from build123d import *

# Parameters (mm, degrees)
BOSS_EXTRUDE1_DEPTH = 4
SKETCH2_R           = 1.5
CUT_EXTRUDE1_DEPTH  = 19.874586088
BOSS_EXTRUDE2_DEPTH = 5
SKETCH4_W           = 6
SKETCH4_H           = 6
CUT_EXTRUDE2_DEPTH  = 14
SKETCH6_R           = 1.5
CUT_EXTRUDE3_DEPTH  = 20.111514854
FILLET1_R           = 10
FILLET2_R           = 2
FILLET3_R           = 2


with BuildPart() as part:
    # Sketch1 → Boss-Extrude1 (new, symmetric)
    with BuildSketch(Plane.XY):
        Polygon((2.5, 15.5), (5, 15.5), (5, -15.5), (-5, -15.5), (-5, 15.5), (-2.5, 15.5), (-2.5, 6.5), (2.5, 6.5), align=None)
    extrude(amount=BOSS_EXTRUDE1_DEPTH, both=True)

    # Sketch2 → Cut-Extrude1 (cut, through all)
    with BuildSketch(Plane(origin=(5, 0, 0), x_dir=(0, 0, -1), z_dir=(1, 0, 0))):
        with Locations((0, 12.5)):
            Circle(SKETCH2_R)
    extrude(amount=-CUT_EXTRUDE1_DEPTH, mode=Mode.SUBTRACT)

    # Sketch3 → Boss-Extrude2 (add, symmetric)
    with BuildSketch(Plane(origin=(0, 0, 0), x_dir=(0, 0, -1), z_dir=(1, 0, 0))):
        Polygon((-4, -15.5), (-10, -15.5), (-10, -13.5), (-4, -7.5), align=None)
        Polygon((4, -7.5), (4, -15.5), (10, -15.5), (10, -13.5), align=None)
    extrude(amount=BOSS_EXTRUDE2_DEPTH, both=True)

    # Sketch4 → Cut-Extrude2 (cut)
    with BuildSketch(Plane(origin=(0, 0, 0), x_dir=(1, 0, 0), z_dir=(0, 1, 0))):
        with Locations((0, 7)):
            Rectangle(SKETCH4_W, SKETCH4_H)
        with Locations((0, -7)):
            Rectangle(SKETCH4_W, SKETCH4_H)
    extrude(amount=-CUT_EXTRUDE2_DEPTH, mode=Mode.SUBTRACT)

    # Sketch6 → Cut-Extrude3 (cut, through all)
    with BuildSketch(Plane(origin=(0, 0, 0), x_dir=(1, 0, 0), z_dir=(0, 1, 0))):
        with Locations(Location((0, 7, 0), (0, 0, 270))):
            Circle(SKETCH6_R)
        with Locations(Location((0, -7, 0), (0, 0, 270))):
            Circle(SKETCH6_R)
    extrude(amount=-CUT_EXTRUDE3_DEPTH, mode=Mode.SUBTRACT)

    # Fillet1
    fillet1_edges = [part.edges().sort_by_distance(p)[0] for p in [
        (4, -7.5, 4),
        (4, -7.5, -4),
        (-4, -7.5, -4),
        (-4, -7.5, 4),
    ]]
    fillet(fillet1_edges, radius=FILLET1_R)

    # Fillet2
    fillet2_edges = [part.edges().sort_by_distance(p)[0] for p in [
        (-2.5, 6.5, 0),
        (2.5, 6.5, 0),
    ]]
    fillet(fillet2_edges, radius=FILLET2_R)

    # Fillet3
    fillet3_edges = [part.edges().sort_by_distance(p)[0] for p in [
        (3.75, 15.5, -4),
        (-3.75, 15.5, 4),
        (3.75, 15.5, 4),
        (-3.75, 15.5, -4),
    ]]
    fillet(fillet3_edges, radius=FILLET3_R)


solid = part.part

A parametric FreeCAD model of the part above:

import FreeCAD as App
import Part
import Sketcher
Q = App.Units.Quantity


def edges_at(feature, points):
    """Names of the edges that pass closest to the given points."""
    edges = feature.Shape.Edges
    near = lambda p: min(range(len(edges)), key=lambda i: edges[i].distToShape(Part.Vertex(*p))[0])
    return sorted({f"Edge{near(p) + 1}" for p in points})

doc = App.newDocument("Part")
body = doc.addObject("PartDesign::Body", "Body")

# Sketch on XY plane
sketch1 = body.newObject("Sketcher::SketchObject", "Sketch")
sketch1.AttachmentSupport = (doc.getObject("XY_Plane"), [""])
sketch1.MapMode = "FlatFace"
sketch1.addGeometry([
    Part.LineSegment(App.Vector(5, 15.5, 0), App.Vector(2.5, 15.5, 0)),  # 0
    Part.LineSegment(App.Vector(2.5, 15.5, 0), App.Vector(2.5, 6.5, 0)),  # 1
    Part.LineSegment(App.Vector(2.5, 6.5, 0), App.Vector(-2.5, 6.5, 0)),  # 2
    Part.LineSegment(App.Vector(-2.5, 6.5, 0), App.Vector(-2.5, 15.5, 0)),  # 3
    Part.LineSegment(App.Vector(-2.5, 15.5, 0), App.Vector(-5, 15.5, 0)),  # 4
    Part.LineSegment(App.Vector(-5, 15.5, 0), App.Vector(-5, -15.5, 0)),  # 5
    Part.LineSegment(App.Vector(-5, -15.5, 0), App.Vector(5, -15.5, 0)),  # 6
    Part.LineSegment(App.Vector(5, -15.5, 0), App.Vector(5, 15.5, 0)),  # 7
], False)
sketch1.addConstraint([
    Sketcher.Constraint("Coincident", 0, 2, 1, 1),
    Sketcher.Constraint("Coincident", 1, 2, 2, 1),
    Sketcher.Constraint("Coincident", 2, 2, 3, 1),
    Sketcher.Constraint("Coincident", 3, 2, 4, 1),
    Sketcher.Constraint("Coincident", 4, 2, 5, 1),
    Sketcher.Constraint("Coincident", 5, 2, 6, 1),
    Sketcher.Constraint("Coincident", 6, 2, 7, 1),
    Sketcher.Constraint("Coincident", 7, 2, 0, 1),
    Sketcher.Constraint("Horizontal", 0),
    Sketcher.Constraint("Vertical", 1),
    Sketcher.Constraint("Horizontal", 2),
    Sketcher.Constraint("Vertical", 3),
    Sketcher.Constraint("Horizontal", 4),
    Sketcher.Constraint("Vertical", 5),
    Sketcher.Constraint("Horizontal", 6),
    Sketcher.Constraint("Vertical", 7),
    Sketcher.Constraint("Symmetric", 4, 2, 6, 2, -1, 1),
    Sketcher.Constraint("Symmetric", 0, 2, 3, 2, -2),
    Sketcher.Constraint("DistanceX", 2, 2, 2, 1, Q("5 mm")),
    Sketcher.Constraint("DistanceX", 6, 1, 6, 2, Q("10 mm")),
    Sketcher.Constraint("DistanceY", 1, 2, 1, 1, Q("9 mm")),
    Sketcher.Constraint("DistanceY", 5, 2, 5, 1, Q("31 mm")),
])
pad1 = body.newObject("PartDesign::Pad", "Pad")
pad1.Profile = sketch1
pad1.Length = 8
pad1.Midplane = True

# Sketch on YZ plane
sketch2 = body.newObject("Sketcher::SketchObject", "Sketch001")
sketch2.AttachmentSupport = (doc.getObject("YZ_Plane"), [""])
sketch2.MapMode = "FlatFace"
sketch2.AttachmentOffset = App.Placement(App.Vector(0, 0, 5), App.Rotation())
sketch2.addGeometry(Part.Circle(App.Vector(12.5, 0, 0), App.Vector(0, 0, 1), 1.5), False)
sketch2.addConstraint([
    Sketcher.Constraint("PointOnObject", 0, 3, -1),
    Sketcher.Constraint("Diameter", 0, Q("3 mm")),
    Sketcher.Constraint("DistanceX", -1, 1, 0, 3, Q("12.5 mm")),
])
pocket1 = body.newObject("PartDesign::Pocket", "Pocket")
pocket1.Profile = sketch2
pocket1.Type = "ThroughAll"

# Sketch on YZ plane
sketch3 = body.newObject("Sketcher::SketchObject", "Sketch002")
sketch3.AttachmentSupport = (doc.getObject("YZ_Plane"), [""])
sketch3.MapMode = "FlatFace"
sketch3.addGeometry([
    Part.LineSegment(App.Vector(-15.5, 10, 0), App.Vector(-15.5, 4, 0)),  # 0
    Part.LineSegment(App.Vector(-15.5, 4, 0), App.Vector(-7.5, 4, 0)),  # 1
    Part.LineSegment(App.Vector(-7.5, 4, 0), App.Vector(-13.5, 10, 0)),  # 2
    Part.LineSegment(App.Vector(-13.5, 10, 0), App.Vector(-15.5, 10, 0)),  # 3
    Part.LineSegment(App.Vector(-7.5, -4, 0), App.Vector(-15.5, -4, 0)),  # 4
    Part.LineSegment(App.Vector(-15.5, -4, 0), App.Vector(-15.5, -10, 0)),  # 5
    Part.LineSegment(App.Vector(-15.5, -10, 0), App.Vector(-13.5, -10, 0)),  # 6
    Part.LineSegment(App.Vector(-13.5, -10, 0), App.Vector(-7.5, -4, 0)),  # 7
], False)
sketch3.addConstraint([
    Sketcher.Constraint("Coincident", 0, 2, 1, 1),
    Sketcher.Constraint("Coincident", 1, 2, 2, 1),
    Sketcher.Constraint("Coincident", 2, 2, 3, 1),
    Sketcher.Constraint("Coincident", 3, 2, 0, 1),
    Sketcher.Constraint("Coincident", 4, 2, 5, 1),
    Sketcher.Constraint("Coincident", 5, 2, 6, 1),
    Sketcher.Constraint("Coincident", 6, 2, 7, 1),
    Sketcher.Constraint("Coincident", 7, 2, 4, 1),
    Sketcher.Constraint("Vertical", 0),
    Sketcher.Constraint("Horizontal", 1),
    Sketcher.Constraint("Horizontal", 3),
    Sketcher.Constraint("Horizontal", 4),
    Sketcher.Constraint("Vertical", 5),
    Sketcher.Constraint("Horizontal", 6),
    Sketcher.Constraint("Symmetric", 0, 2, 4, 2, -1),
    Sketcher.Constraint("Symmetric", 2, 2, 6, 2, -1),
    Sketcher.Constraint("Perpendicular", 2, 7),
    Sketcher.Constraint("Vertical", 1, 2, 7, 2),
    Sketcher.Constraint("DistanceX", 1, 1, 1, 2, Q("8 mm")),
    Sketcher.Constraint("DistanceX", 3, 2, 3, 1, Q("2 mm")),
    Sketcher.Constraint("DistanceY", -1, 1, 0, 2, Q("4 mm")),
    Sketcher.Constraint("DistanceX", 0, 2, -1, 1, Q("15.5 mm")),
])
pad2 = body.newObject("PartDesign::Pad", "Pad001")
pad2.Profile = sketch3
pad2.Length = 10
pad2.Midplane = True

# Sketch on XZ plane
sketch4 = body.newObject("Sketcher::SketchObject", "Sketch003")
sketch4.AttachmentSupport = (doc.getObject("XZ_Plane"), [""])
sketch4.MapMode = "FlatFace"
sketch4.addGeometry([
    Part.LineSegment(App.Vector(-3, -10, 0), App.Vector(-3, -4, 0)),  # 0
    Part.LineSegment(App.Vector(-3, -4, 0), App.Vector(3, -4, 0)),  # 1
    Part.LineSegment(App.Vector(3, -4, 0), App.Vector(3, -10, 0)),  # 2
    Part.LineSegment(App.Vector(3, -10, 0), App.Vector(-3, -10, 0)),  # 3
    Part.LineSegment(App.Vector(-3, 4, 0), App.Vector(-3, 10, 0)),  # 4
    Part.LineSegment(App.Vector(-3, 10, 0), App.Vector(3, 10, 0)),  # 5
    Part.LineSegment(App.Vector(3, 10, 0), App.Vector(3, 4, 0)),  # 6
    Part.LineSegment(App.Vector(3, 4, 0), App.Vector(-3, 4, 0)),  # 7
], False)
sketch4.addConstraint([
    Sketcher.Constraint("Coincident", 0, 2, 1, 1),
    Sketcher.Constraint("Coincident", 1, 2, 2, 1),
    Sketcher.Constraint("Coincident", 2, 2, 3, 1),
    Sketcher.Constraint("Coincident", 3, 2, 0, 1),
    Sketcher.Constraint("Coincident", 4, 2, 5, 1),
    Sketcher.Constraint("Coincident", 5, 2, 6, 1),
    Sketcher.Constraint("Coincident", 6, 2, 7, 1),
    Sketcher.Constraint("Coincident", 7, 2, 4, 1),
    Sketcher.Constraint("Vertical", 0),
    Sketcher.Constraint("Horizontal", 1),
    Sketcher.Constraint("Vertical", 2),
    Sketcher.Constraint("Horizontal", 3),
    Sketcher.Constraint("Vertical", 4),
    Sketcher.Constraint("Horizontal", 5),
    Sketcher.Constraint("Vertical", 6),
    Sketcher.Constraint("Horizontal", 7),
    Sketcher.Constraint("Symmetric", 2, 2, 4, 2, -1, 1),
    Sketcher.Constraint("Symmetric", 0, 2, 6, 2, -1, 1),
    Sketcher.Constraint("Vertical", 3, 2, 4, 2),
    Sketcher.Constraint("Equal", 7, 0),
    Sketcher.Constraint("DistanceX", 1, 1, 1, 2, Q("6 mm")),
    Sketcher.Constraint("DistanceY", 0, 2, -1, 1, Q("4 mm")),
])
pocket2 = body.newObject("PartDesign::Pocket", "Pocket001")
pocket2.Profile = sketch4
pocket2.Length = 14
pocket2.Reversed = True

# Sketch on XZ plane
sketch5 = body.newObject("Sketcher::SketchObject", "Sketch004")
sketch5.AttachmentSupport = (doc.getObject("XZ_Plane"), [""])
sketch5.MapMode = "FlatFace"
sketch5.addGeometry([
    Part.Circle(App.Vector(0, -7, 0), App.Vector(0, 0, 1), 1.5),
    Part.Circle(App.Vector(0, 7, 0), App.Vector(0, 0, 1), 1.5),
], False)
sketch5.addConstraint([
    Sketcher.Constraint("Equal", 0, 1),
    Sketcher.Constraint("Symmetric", 0, 3, 1, 3, -1, 1),
    Sketcher.Constraint("PointOnObject", 0, 3, -2),
    Sketcher.Constraint("Diameter", 0, Q("3 mm")),
    Sketcher.Constraint("DistanceY", 0, 3, -1, 1, Q("7 mm")),
])
pocket3 = body.newObject("PartDesign::Pocket", "Pocket002")
pocket3.Profile = sketch5
pocket3.Type = "ThroughAll"
pocket3.Reversed = True
doc.recompute()

fillet = body.newObject("PartDesign::Fillet", "Fillet")
fillet.Base = (pocket3, edges_at(pocket3, [
    (4, -7.5, 4),
    (4, -7.5, -4),
    (-4, -7.5, -4),
    (-4, -7.5, 4),
]))
fillet.Radius = 10
doc.recompute()

fillet2 = body.newObject("PartDesign::Fillet", "Fillet001")
fillet2.Base = (fillet, edges_at(fillet, [(-2.5, 6.5, 0), (2.5, 6.5, 0)]))
fillet2.Radius = 2
doc.recompute()

fillet3 = body.newObject("PartDesign::Fillet", "Fillet002")
fillet3.Base = (fillet2, edges_at(fillet2, [
    (3.75, 15.5, -4),
    (-3.75, 15.5, 4),
    (3.75, 15.5, 4),
    (-3.75, 15.5, -4),
]))
fillet3.Radius = 2

doc.recompute()
